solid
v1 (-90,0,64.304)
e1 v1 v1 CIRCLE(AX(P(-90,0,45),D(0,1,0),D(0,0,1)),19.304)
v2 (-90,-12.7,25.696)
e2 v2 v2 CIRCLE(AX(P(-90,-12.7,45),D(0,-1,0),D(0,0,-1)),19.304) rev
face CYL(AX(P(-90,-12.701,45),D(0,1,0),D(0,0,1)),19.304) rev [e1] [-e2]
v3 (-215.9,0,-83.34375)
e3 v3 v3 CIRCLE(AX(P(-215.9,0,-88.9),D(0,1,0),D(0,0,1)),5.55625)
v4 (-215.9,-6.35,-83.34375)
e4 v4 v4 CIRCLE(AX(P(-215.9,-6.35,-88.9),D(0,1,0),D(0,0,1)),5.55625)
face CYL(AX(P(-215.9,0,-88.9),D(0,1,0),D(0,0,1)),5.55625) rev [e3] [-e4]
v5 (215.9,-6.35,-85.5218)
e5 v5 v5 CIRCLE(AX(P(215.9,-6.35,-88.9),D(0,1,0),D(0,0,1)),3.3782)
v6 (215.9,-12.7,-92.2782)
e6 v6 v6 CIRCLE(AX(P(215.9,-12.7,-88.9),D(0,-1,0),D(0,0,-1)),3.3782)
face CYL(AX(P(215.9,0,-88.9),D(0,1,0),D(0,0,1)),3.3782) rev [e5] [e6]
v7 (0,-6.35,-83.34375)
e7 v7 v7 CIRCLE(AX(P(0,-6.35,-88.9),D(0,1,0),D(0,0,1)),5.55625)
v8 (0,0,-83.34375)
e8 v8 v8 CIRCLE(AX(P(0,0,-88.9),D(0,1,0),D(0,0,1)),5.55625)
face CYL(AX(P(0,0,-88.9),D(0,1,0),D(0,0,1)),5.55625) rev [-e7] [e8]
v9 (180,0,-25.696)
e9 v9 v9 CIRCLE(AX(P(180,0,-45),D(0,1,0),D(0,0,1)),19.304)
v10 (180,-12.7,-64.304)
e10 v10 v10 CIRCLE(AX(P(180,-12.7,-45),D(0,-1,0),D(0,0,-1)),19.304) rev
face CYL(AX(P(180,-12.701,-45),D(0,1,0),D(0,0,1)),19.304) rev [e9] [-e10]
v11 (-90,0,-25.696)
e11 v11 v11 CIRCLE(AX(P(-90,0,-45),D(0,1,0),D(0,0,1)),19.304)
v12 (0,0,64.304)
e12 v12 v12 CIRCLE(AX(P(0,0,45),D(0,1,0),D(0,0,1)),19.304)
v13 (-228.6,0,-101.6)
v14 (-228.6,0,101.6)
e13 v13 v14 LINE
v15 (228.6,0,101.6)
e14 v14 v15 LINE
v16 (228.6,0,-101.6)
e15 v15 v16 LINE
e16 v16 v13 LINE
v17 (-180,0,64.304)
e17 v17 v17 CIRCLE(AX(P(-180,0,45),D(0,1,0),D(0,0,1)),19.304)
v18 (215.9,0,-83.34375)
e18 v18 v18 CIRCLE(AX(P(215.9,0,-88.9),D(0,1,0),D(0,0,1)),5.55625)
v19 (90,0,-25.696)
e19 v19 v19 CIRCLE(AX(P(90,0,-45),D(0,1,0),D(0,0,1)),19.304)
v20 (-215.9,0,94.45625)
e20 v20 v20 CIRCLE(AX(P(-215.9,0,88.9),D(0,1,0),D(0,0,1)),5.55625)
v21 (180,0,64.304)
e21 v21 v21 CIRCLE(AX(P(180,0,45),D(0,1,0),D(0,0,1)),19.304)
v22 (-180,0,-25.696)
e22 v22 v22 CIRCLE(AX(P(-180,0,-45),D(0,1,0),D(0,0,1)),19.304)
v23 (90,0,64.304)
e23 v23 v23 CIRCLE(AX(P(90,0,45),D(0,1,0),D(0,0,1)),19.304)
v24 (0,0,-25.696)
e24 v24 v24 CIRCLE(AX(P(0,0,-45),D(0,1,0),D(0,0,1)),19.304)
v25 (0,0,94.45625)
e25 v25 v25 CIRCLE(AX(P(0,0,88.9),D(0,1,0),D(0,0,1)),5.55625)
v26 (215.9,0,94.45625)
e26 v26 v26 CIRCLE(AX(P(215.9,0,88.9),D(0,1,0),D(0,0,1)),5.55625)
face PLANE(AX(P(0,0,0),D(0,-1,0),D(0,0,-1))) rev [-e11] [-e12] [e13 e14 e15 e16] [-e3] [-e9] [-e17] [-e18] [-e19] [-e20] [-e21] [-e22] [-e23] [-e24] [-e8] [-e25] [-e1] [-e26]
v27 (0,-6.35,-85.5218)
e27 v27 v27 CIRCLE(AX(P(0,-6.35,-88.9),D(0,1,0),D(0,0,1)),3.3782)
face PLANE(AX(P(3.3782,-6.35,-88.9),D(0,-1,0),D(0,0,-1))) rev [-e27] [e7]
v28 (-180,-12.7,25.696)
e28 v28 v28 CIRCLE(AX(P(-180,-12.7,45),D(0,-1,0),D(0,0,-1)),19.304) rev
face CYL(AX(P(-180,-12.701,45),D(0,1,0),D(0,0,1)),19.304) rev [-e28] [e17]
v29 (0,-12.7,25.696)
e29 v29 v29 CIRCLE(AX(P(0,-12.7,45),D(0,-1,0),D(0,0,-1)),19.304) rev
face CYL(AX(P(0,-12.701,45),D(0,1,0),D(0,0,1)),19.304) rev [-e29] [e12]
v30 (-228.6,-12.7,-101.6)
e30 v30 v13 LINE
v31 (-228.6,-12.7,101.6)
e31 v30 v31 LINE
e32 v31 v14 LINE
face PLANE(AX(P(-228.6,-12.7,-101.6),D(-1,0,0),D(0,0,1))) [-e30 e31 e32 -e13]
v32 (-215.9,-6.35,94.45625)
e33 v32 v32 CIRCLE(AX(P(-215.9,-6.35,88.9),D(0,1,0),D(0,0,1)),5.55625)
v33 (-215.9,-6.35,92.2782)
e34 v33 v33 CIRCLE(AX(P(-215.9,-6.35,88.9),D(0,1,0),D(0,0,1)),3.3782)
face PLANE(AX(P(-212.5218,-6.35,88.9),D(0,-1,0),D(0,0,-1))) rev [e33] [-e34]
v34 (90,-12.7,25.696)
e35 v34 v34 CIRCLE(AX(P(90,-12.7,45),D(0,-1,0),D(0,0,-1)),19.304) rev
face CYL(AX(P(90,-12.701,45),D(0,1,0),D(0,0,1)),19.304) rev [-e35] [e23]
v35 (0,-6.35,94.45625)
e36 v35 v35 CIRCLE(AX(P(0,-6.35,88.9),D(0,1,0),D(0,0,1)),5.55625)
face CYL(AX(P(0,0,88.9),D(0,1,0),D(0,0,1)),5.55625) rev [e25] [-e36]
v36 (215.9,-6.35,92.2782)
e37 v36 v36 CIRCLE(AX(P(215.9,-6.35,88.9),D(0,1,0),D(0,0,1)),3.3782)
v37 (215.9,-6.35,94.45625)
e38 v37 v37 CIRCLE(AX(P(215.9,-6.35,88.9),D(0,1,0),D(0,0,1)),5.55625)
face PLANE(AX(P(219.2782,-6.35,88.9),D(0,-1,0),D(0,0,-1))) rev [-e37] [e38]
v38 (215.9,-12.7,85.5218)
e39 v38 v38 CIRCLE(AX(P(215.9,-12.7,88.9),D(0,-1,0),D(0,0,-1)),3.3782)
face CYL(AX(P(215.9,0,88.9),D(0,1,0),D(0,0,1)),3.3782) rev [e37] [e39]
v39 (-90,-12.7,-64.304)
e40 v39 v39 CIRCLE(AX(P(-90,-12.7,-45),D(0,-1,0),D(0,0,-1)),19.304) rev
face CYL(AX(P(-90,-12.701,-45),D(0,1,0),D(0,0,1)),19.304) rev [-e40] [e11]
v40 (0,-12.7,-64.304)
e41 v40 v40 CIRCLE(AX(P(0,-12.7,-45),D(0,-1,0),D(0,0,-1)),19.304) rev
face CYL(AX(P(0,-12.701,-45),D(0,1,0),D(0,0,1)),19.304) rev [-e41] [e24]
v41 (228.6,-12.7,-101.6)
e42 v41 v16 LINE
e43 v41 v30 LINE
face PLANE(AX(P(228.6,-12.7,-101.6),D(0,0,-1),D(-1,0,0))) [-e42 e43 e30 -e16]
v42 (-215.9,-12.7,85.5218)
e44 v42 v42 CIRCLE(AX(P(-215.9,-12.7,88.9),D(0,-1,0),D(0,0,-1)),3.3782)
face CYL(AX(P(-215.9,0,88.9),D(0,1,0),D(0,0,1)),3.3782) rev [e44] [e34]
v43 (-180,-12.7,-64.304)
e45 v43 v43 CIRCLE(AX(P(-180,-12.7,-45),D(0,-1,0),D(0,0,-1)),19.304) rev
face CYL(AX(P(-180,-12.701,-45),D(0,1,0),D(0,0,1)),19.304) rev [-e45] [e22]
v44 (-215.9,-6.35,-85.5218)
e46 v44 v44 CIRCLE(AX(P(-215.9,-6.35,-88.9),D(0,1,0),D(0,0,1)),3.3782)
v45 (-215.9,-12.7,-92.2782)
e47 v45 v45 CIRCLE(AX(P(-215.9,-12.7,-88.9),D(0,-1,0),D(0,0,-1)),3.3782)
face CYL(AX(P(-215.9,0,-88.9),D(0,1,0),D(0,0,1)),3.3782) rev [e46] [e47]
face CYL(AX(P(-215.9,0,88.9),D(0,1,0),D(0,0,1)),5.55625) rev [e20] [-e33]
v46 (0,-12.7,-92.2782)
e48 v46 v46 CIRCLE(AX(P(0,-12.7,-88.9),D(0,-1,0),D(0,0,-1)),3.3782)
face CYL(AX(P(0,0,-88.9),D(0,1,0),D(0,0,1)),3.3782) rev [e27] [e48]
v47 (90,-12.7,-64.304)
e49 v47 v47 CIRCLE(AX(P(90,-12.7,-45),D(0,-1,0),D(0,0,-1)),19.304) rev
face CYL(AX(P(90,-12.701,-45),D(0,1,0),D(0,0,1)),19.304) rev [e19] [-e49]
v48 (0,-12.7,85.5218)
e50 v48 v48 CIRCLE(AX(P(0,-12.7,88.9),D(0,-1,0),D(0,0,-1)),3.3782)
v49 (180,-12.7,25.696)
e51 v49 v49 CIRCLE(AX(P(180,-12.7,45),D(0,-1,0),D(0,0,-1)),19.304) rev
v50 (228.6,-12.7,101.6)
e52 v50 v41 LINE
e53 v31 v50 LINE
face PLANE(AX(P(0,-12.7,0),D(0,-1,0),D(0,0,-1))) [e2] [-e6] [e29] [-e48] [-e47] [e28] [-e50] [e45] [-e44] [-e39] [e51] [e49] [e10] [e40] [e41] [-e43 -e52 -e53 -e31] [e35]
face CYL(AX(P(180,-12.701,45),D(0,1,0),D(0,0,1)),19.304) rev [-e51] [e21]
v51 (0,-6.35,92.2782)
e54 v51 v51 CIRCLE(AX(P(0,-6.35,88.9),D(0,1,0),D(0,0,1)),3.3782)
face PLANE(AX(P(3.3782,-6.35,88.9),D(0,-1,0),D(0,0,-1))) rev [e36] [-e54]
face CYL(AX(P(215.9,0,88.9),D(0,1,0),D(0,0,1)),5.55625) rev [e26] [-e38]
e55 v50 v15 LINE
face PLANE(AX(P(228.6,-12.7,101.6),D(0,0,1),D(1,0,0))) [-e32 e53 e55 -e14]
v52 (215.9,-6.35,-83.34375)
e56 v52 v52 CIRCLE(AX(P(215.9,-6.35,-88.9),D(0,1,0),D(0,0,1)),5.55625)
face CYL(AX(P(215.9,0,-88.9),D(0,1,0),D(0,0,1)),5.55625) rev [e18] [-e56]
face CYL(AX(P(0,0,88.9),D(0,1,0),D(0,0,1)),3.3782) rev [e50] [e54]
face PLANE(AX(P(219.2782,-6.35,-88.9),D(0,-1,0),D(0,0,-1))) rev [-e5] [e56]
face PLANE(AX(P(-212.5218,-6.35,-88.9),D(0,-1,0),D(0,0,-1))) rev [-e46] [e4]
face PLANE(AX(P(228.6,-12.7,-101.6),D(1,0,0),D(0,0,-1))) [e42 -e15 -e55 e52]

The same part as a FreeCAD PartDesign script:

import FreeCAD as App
import Part
import Sketcher

V = App.Vector
Q = App.Units.Quantity


def add_polygon(sketch, points):
    """Adds a closed chain of lines whose ends are joined by coincident constraints."""
    first, n = sketch.GeometryCount, len(points)
    for a, b in zip(points, points[1:] + points[:1]):
        sketch.addGeometry(Part.LineSegment(App.Vector(*a, 0), App.Vector(*b, 0)), False)
    for i in range(n):
        sketch.addConstraint(Sketcher.Constraint("Coincident", first + i, 2, first + (i + 1) % n, 1))

doc = App.newDocument("Part")
params = doc.addObject("Spreadsheet::Sheet", "Params")
for row, (alias, value) in enumerate([
    ("sketch1_width", "18 in"),
    ("sketch1_height", "8 in"),
    ("pad1_length", "0.5 in"),
    ("sketch2_diameter", "1.52 in"),
    ("sketch3_diameter", "1.52 in"),
    ("sketch4_diameter", "1.52 in"),
    ("sketch5_diameter", "1.52 in"),
    ("sketch6_diameter", "1.52 in"),
    ("sketch7_diameter", "1.52 in"),
    ("sketch8_diameter", "1.52 in"),
    ("sketch9_diameter", "1.52 in"),
    ("sketch10_diameter", "1.52 in"),
    ("sketch11_diameter", "1.52 in"),
    ("sketch12_diameter", "0.266 in"),
    ("hole_diameter", "0.266 in"),
    ("hole_depth", "0.5 in"),
    ("hole_cbore_diameter", "0.4375 in"),
    ("hole_cbore_depth", "0.25 in"),
], start=1):
    params.set(f"A{row}", alias)
    params.set(f"B{row}", "=" + value)
    params.setAlias(f"B{row}", alias)

body = doc.addObject("PartDesign::Body", "Body")

# Sketch on XZ plane
sketch1 = body.newObject("Sketcher::SketchObject", "Sketch")
sketch1.AttachmentSupport = (doc.getObject("XZ_Plane"), [""])
sketch1.MapMode = "FlatFace"
add_polygon(sketch1, [(-229, -102), (-229, 102), (229, 102), (229, -102)])  # lines 0-3
sketch1.addConstraint(Sketcher.Constraint("Vertical", 0))
sketch1.addConstraint(Sketcher.Constraint("Horizontal", 1))
sketch1.addConstraint(Sketcher.Constraint("Vertical", 2))
sketch1.addConstraint(Sketcher.Constraint("Horizontal", 3))
sketch1.addConstraint(Sketcher.Constraint("Symmetric", 0, 2, 2, 2, -1, 1))
sketch1.addConstraint(Sketcher.Constraint("DistanceX", 1, 1, 1, 2, Q("18 in")))
sketch1.addConstraint(Sketcher.Constraint("DistanceY", 0, 1, 0, 2, Q("8 in")))
sketch1.setExpression("Constraints[9]", "Params.sketch1_width")
sketch1.setExpression("Constraints[10]", "Params.sketch1_height")
pad1 = body.newObject("PartDesign::Pad", "Pad")
pad1.Profile = sketch1
pad1.setExpression("Length", "Params.pad1_length")

# Sketch on XZ plane
sketch2 = body.newObject("Sketcher::SketchObject", "Sketch001")
sketch2.AttachmentSupport = (doc.getObject("XZ_Plane"), [""])
sketch2.MapMode = "FlatFace"
sketch2.addGeometry(Part.Circle(V(-180, -45, 0), V(0, 0, 1), 19), False)
sketch2.addConstraint(Sketcher.Constraint("Diameter", 0, Q("1.52 in")))
sketch2.addConstraint(Sketcher.Constraint("DistanceX", 0, 3, -1, 1, 180.0))
sketch2.addConstraint(Sketcher.Constraint("DistanceY", 0, 3, -1, 1, 45.0))
sketch2.setExpression("Constraints[0]", "Params.sketch2_diameter")
pocket1 = body.newObject("PartDesign::Pocket", "Pocket")
pocket1.Profile = sketch2
pocket1.Type = "UpToFirst"
pocket1.Reversed = True

# Sketch on XZ plane
sketch3 = body.newObject("Sketcher::SketchObject", "Sketch002")
sketch3.AttachmentSupport = (doc.getObject("XZ_Plane"), [""])
sketch3.MapMode = "FlatFace"
sketch3.addGeometry(Part.Circle(V(-90, -45, 0), V(0, 0, 1), 19), False)
sketch3.addConstraint(Sketcher.Constraint("Diameter", 0, Q("1.52 in")))
sketch3.addConstraint(Sketcher.Constraint("DistanceX", 0, 3, -1, 1, 90.0))
sketch3.addConstraint(Sketcher.Constraint("DistanceY", 0, 3, -1, 1, 45.0))
sketch3.setExpression("Constraints[0]", "Params.sketch3_diameter")
pocket2 = body.newObject("PartDesign::Pocket", "Pocket001")
pocket2.Profile = sketch3
pocket2.Type = "UpToFirst"
pocket2.Reversed = True

# Sketch on XZ plane
sketch4 = body.newObject("Sketcher::SketchObject", "Sketch003")
sketch4.AttachmentSupport = (doc.getObject("XZ_Plane"), [""])
sketch4.MapMode = "FlatFace"
sketch4.addGeometry(Part.Circle(V(0, -45, 0), V(0, 0, 1), 19), False)
sketch4.addConstraint(Sketcher.Constraint("PointOnObject", 0, 3, -2))
sketch4.addConstraint(Sketcher.Constraint("Diameter", 0, Q("1.52 in")))
sketch4.addConstraint(Sketcher.Constraint("DistanceY", 0, 3, -1, 1, 45.0))
sketch4.setExpression("Constraints[1]", "Params.sketch4_diameter")
pocket3 = body.newObject("PartDesign::Pocket", "Pocket002")
pocket3.Profile = sketch4
pocket3.Type = "UpToFirst"
pocket3.Reversed = True

# Sketch on XZ plane
sketch5 = body.newObject("Sketcher::SketchObject", "Sketch004")
sketch5.AttachmentSupport = (doc.getObject("XZ_Plane"), [""])
sketch5.MapMode = "FlatFace"
sketch5.addGeometry(Part.Circle(V(-180, 45, 0), V(0, 0, 1), 19), False)
sketch5.addConstraint(Sketcher.Constraint("Diameter", 0, Q("1.52 in")))
sketch5.addConstraint(Sketcher.Constraint("DistanceX", 0, 3, -1, 1, 180.0))
sketch5.addConstraint(Sketcher.Constraint("DistanceY", -1, 1, 0, 3, 45.0))
sketch5.setExpression("Constraints[0]", "Params.sketch5_diameter")
pocket4 = body.newObject("PartDesign::Pocket", "Pocket003")
pocket4.Profile = sketch5
pocket4.Type = "UpToFirst"
pocket4.Reversed = True

# Sketch on XZ plane
sketch6 = body.newObject("Sketcher::SketchObject", "Sketch005")
sketch6.AttachmentSupport = (doc.getObject("XZ_Plane"), [""])
sketch6.MapMode = "FlatFace"
sketch6.addGeometry(Part.Circle(V(-90, 45, 0), V(0, 0, 1), 19), False)
sketch6.addConstraint(Sketcher.Constraint("Diameter", 0, Q("1.52 in")))
sketch6.addConstraint(Sketcher.Constraint("DistanceX", 0, 3, -1, 1, 90.0))
sketch6.addConstraint(Sketcher.Constraint("DistanceY", -1, 1, 0, 3, 45.0))
sketch6.setExpression("Constraints[0]", "Params.sketch6_diameter")
pocket5 = body.newObject("PartDesign::Pocket", "Pocket004")
pocket5.Profile = sketch6
pocket5.Type = "UpToFirst"
pocket5.Reversed = True

# Sketch on XZ plane
sketch7 = body.newObject("Sketcher::SketchObject", "Sketch006")
sketch7.AttachmentSupport = (doc.getObject("XZ_Plane"), [""])
sketch7.MapMode = "FlatFace"
sketch7.addGeometry(Part.Circle(V(0, 45, 0), V(0, 0, 1), 19), False)
sketch7.addConstraint(Sketcher.Constraint("PointOnObject", 0, 3, -2))
sketch7.addConstraint(Sketcher.Constraint("Diameter", 0, Q("1.52 in")))
sketch7.addConstraint(Sketcher.Constraint("DistanceY", -1, 1, 0, 3, 45.0))
sketch7.setExpression("Constraints[1]", "Params.sketch7_diameter")
pocket6 = body.newObject("PartDesign::Pocket", "Pocket005")
pocket6.Profile = sketch7
pocket6.Type = "UpToFirst"
pocket6.Reversed = True

# Sketch on XZ plane
sketch8 = body.newObject("Sketcher::SketchObject", "Sketch007")
sketch8.AttachmentSupport = (doc.getObject("XZ_Plane"), [""])
sketch8.MapMode = "FlatFace"
sketch8.addGeometry(Part.Circle(V(90, 45, 0), V(0, 0, 1), 19), False)
sketch8.addConstraint(Sketcher.Constraint("Diameter", 0, Q("1.52 in")))
sketch8.addConstraint(Sketcher.Constraint("DistanceX", -1, 1, 0, 3, 90.0))
sketch8.addConstraint(Sketcher.Constraint("DistanceY", -1, 1, 0, 3, 45.0))
sketch8.setExpression("Constraints[0]", "Params.sketch8_diameter")
pocket7 = body.newObject("PartDesign::Pocket", "Pocket006")
pocket7.Profile = sketch8
pocket7.Type = "UpToFirst"
pocket7.Reversed = True

# Sketch on XZ plane
sketch9 = body.newObject("Sketcher::SketchObject", "Sketch008")
sketch9.AttachmentSupport = (doc.getObject("XZ_Plane"), [""])
sketch9.MapMode = "FlatFace"
sketch9.addGeometry(Part.Circle(V(90, -45, 0), V(0, 0, 1), 19), False)
sketch9.addConstraint(Sketcher.Constraint("Diameter", 0, Q("1.52 in")))
sketch9.addConstraint(Sketcher.Constraint("DistanceX", -1, 1, 0, 3, 90.0))
sketch9.addConstraint(Sketcher.Constraint("DistanceY", 0, 3, -1, 1, 45.0))
sketch9.setExpression("Constraints[0]", "Params.sketch9_diameter")
pocket8 = body.newObject("PartDesign::Pocket", "Pocket007")
pocket8.Profile = sketch9
pocket8.Type = "UpToFirst"
pocket8.Reversed = True

# Sketch on XZ plane
sketch10 = body.newObject("Sketcher::SketchObject", "Sketch009")
sketch10.AttachmentSupport = (doc.getObject("XZ_Plane"), [""])
sketch10.MapMode = "FlatFace"
sketch10.addGeometry(Part.Circle(V(180, -45, 0), V(0, 0, 1), 19), False)
sketch10.addConstraint(Sketcher.Constraint("Diameter", 0, Q("1.52 in")))
sketch10.addConstraint(Sketcher.Constraint("DistanceX", -1, 1, 0, 3, 180.0))
sketch10.addConstraint(Sketcher.Constraint("DistanceY", 0, 3, -1, 1, 45.0))
sketch10.setExpression("Constraints[0]", "Params.sketch10_diameter")
pocket9 = body.newObject("PartDesign::Pocket", "Pocket008")
pocket9.Profile = sketch10
pocket9.Type = "UpToFirst"
pocket9.Reversed = True

# Sketch on XZ plane
sketch11 = body.newObject("Sketcher::SketchObject", "Sketch010")
sketch11.AttachmentSupport = (doc.getObject("XZ_Plane"), [""])
sketch11.MapMode = "FlatFace"
sketch11.addGeometry(Part.Circle(V(180, 45, 0), V(0, 0, 1), 19), False)
sketch11.addConstraint(Sketcher.Constraint("Diameter", 0, Q("1.52 in")))
sketch11.addConstraint(Sketcher.Constraint("DistanceX", -1, 1, 0, 3, 180.0))
sketch11.addConstraint(Sketcher.Constraint("DistanceY", -1, 1, 0, 3, 45.0))
sketch11.setExpression("Constraints[0]", "Params.sketch11_diameter")
pocket10 = body.newObject("PartDesign::Pocket", "Pocket009")
pocket10.Profile = sketch11
pocket10.Type = "UpToFirst"
pocket10.Reversed = True

# Sketch on XZ plane
sketch12 = body.newObject("Sketcher::SketchObject", "Sketch011")
sketch12.AttachmentSupport = (doc.getObject("XZ_Plane"), [""])
sketch12.MapMode = "FlatFace"
sketch12.addGeometry(Part.Circle(V(-215.9, 88.9, 0), V(0, 0, 1), 3.4), False)
sketch12.addGeometry(Part.Circle(V(0, 88.9, 0), V(0, 0, 1), 3.4), False)
sketch12.addGeometry(Part.Circle(V(215.9, 88.9, 0), V(0, 0, 1), 3.4), False)
sketch12.addGeometry(Part.Circle(V(215.9, -88.9, 0), V(0, 0, 1), 3.4), False)
sketch12.addGeometry(Part.Circle(V(0, -88.9, 0), V(0, 0, 1), 3.4), False)
sketch12.addGeometry(Part.Circle(V(-215.9, -88.9, 0), V(0, 0, 1), 3.4), False)
sketch12.addConstraint(Sketcher.Constraint("Equal", 0, 1))
sketch12.addConstraint(Sketcher.Constraint("Equal", 1, 2))
sketch12.addConstraint(Sketcher.Constraint("Equal", 2, 3))
sketch12.addConstraint(Sketcher.Constraint("Equal", 3, 4))
sketch12.addConstraint(Sketcher.Constraint("Equal", 4, 5))
sketch12.addConstraint(Sketcher.Constraint("Symmetric", 0, 3, 3, 3, -1, 1))
sketch12.addConstraint(Sketcher.Constraint("Symmetric", 1, 3, 4, 3, -1, 1))
sketch12.addConstraint(Sketcher.Constraint("Symmetric", 2, 3, 5, 3, -1, 1))
sketch12.addConstraint(Sketcher.Constraint("Symmetric", 0, 3, 2, 3, -2))
sketch12.addConstraint(Sketcher.Constraint("PointOnObject", 1, 3, -2))
sketch12.addConstraint(Sketcher.Constraint("Horizontal", 0, 3, 1, 3))
sketch12.addConstraint(Sketcher.Constraint("Diameter", 0, Q("0.266 in")))
sketch12.addConstraint(Sketcher.Constraint("DistanceX", 0, 3, 2, 3, Q("17 in")))
sketch12.addConstraint(Sketcher.Constraint("DistanceY", 3, 3, 2, 3, Q("7 in")))
sketch12.setExpression("Constraints[11]", "Params.sketch12_diameter")
doc.recompute()
hole = body.newObject("PartDesign::Hole", "Hole")
hole.Profile = sketch12
hole.ThreadType = "None"
hole.setExpression("Diameter", "Params.hole_diameter")
hole.DepthType = "Dimension"
hole.setExpression("Depth", "Params.hole_depth")
hole.DrillPoint = "Flat"
hole.HoleCutType = "Counterbore"
hole.setExpression("HoleCutDiameter", "Params.hole_cbore_diameter")
hole.setExpression("HoleCutDepth", "Params.hole_cbore_depth")
hole.Reversed = True

doc.recompute()
